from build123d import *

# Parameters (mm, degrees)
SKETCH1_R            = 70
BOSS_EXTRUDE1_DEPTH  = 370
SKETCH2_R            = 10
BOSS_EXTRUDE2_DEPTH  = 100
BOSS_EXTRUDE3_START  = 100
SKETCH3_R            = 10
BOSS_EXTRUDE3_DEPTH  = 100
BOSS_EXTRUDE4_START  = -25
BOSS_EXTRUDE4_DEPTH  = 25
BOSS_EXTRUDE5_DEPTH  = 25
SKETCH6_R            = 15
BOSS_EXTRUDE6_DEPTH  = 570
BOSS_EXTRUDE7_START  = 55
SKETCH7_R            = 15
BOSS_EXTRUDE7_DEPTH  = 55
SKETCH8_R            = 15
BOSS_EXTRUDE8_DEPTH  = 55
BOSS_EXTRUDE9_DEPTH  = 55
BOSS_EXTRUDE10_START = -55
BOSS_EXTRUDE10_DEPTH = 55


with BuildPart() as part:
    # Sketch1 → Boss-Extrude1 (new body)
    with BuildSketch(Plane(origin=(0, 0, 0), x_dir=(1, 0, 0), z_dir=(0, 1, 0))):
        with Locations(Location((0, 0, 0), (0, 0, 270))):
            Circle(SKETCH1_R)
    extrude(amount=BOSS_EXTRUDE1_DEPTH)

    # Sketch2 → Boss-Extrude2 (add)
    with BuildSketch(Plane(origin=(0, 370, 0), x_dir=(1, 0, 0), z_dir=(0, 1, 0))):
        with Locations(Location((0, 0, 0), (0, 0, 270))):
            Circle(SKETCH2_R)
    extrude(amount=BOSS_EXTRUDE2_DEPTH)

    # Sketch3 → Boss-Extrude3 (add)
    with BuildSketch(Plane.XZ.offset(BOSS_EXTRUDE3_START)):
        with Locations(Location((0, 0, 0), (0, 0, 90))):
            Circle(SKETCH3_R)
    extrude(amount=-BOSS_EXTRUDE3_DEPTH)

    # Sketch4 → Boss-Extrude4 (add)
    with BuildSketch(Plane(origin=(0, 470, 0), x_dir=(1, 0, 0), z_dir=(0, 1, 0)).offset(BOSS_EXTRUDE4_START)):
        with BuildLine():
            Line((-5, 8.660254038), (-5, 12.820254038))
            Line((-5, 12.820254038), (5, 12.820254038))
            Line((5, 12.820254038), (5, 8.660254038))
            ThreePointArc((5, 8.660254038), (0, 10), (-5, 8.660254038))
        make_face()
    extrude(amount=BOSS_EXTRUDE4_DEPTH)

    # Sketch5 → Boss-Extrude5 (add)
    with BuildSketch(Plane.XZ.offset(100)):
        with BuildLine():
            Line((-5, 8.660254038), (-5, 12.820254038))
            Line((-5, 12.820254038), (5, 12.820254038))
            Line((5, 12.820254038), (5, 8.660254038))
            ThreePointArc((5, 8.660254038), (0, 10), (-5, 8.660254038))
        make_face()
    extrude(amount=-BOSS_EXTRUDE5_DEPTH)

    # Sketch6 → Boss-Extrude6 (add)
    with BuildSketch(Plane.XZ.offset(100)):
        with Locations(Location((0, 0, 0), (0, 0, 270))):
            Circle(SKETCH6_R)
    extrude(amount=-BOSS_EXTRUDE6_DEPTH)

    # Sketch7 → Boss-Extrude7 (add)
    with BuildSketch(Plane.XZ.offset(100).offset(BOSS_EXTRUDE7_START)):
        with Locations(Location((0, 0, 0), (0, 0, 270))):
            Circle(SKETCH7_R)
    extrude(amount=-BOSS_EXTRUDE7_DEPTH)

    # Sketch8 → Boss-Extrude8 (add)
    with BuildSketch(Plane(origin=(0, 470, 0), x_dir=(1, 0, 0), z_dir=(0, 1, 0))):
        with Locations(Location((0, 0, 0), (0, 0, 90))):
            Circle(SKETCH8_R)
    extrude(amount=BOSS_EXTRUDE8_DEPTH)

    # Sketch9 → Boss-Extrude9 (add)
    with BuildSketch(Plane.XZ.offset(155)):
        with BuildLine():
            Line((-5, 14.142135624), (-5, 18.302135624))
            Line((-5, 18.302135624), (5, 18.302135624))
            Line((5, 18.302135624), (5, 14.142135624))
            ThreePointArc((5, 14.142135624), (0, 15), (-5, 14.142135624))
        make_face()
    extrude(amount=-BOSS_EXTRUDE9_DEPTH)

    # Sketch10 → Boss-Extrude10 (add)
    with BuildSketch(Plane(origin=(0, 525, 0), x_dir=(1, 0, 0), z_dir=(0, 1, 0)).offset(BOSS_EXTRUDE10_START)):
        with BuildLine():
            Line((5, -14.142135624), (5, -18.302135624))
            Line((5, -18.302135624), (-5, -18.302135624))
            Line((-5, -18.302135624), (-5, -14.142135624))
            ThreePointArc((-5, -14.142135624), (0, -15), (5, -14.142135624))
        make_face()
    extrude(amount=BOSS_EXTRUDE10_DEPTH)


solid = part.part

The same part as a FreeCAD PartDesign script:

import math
import FreeCAD as App
import Part
import Sketcher
Q = App.Units.Quantity

doc = App.newDocument("Part")
body = doc.addObject("PartDesign::Body", "Body")

# Sketch on XZ plane
sketch1 = body.newObject("Sketcher::SketchObject", "Sketch")
sketch1.AttachmentSupport = (doc.getObject("XZ_Plane"), [""])
sketch1.MapMode = "FlatFace"
sketch1.addGeometry(Part.Circle(App.Vector(0, 0, 0), App.Vector(0, 0, 1), 70), False)
sketch1.addConstraint(Sketcher.Constraint("Coincident", 0, 3, -1, 1))
sketch1.addConstraint(Sketcher.Constraint("Diameter", 0, Q("140 mm")))
pad1 = body.newObject("PartDesign::Pad", "Pad")
pad1.Profile = sketch1
pad1.Length = 370
pad1.Reversed = True

# Sketch on XZ plane
sketch2 = body.newObject("Sketcher::SketchObject", "Sketch001")
sketch2.AttachmentSupport = (doc.getObject("XZ_Plane"), [""])
sketch2.MapMode = "FlatFace"
sketch2.AttachmentOffset = App.Placement(App.Vector(0, 0, -370), App.Rotation())
sketch2.addGeometry(Part.Circle(App.Vector(0, 0, 0), App.Vector(0, 0, 1), 10), False)
sketch2.addConstraint(Sketcher.Constraint("Coincident", 0, 3, -1, 1))
sketch2.addConstraint(Sketcher.Constraint("Diameter", 0, Q("20 mm")))
pad2 = body.newObject("PartDesign::Pad", "Pad001")
pad2.Profile = sketch2
pad2.Length = 100
pad2.Reversed = True

# Sketch on XZ plane
sketch3 = body.newObject("Sketcher::SketchObject", "Sketch002")
sketch3.AttachmentSupport = (doc.getObject("XZ_Plane"), [""])
sketch3.MapMode = "FlatFace"
sketch3.AttachmentOffset = App.Placement(App.Vector(0, 0, 100), App.Rotation())
sketch3.addGeometry(Part.Circle(App.Vector(0, 0, 0), App.Vector(0, 0, 1), 10), False)
sketch3.addConstraint(Sketcher.Constraint("Coincident", 0, 3, -1, 1))
sketch3.addConstraint(Sketcher.Constraint("Diameter", 0, Q("20 mm")))
pad3 = body.newObject("PartDesign::Pad", "Pad002")
pad3.Profile = sketch3
pad3.Length = 100
pad3.Reversed = True

# Sketch on XZ plane
sketch4 = body.newObject("Sketcher::SketchObject", "Sketch003")
sketch4.AttachmentSupport = (doc.getObject("XZ_Plane"), [""])
sketch4.MapMode = "FlatFace"
sketch4.AttachmentOffset = App.Placement(App.Vector(0, 0, -445), App.Rotation())
sketch4.addGeometry(Part.LineSegment(App.Vector(-5, -12.8, 0), App.Vector(-5, -8.7, 0)), False)
sketch4.addGeometry(Part.ArcOfCircle(Part.Circle(App.Vector(0, 0, 0), App.Vector(0, 0, 1), 10), math.radians(-120), math.radians(-60)), False)
sketch4.addGeometry(Part.LineSegment(App.Vector(5, -8.7, 0), App.Vector(5, -12.8, 0)), False)
sketch4.addGeometry(Part.LineSegment(App.Vector(5, -12.8, 0), App.Vector(-5, -12.8, 0)), False)
sketch4.addConstraint(Sketcher.Constraint("Coincident", 0, 2, 1, 1))
sketch4.addConstraint(Sketcher.Constraint("Coincident", 1, 2, 2, 1))
sketch4.addConstraint(Sketcher.Constraint("Coincident", 2, 2, 3, 1))
sketch4.addConstraint(Sketcher.Constraint("Coincident", 3, 2, 0, 1))
sketch4.addConstraint(Sketcher.Constraint("Vertical", 0))
sketch4.addConstraint(Sketcher.Constraint("Vertical", 2))
sketch4.addConstraint(Sketcher.Constraint("Horizontal", 3))
sketch4.addConstraint(Sketcher.Constraint("Coincident", 1, 3, -1, 1))
sketch4.addConstraint(Sketcher.Constraint("Horizontal", 0, 2, 1, 2))
sketch4.addConstraint(Sketcher.Constraint("Radius", 1, Q("10 mm")))
sketch4.addConstraint(Sketcher.Constraint("DistanceX", 3, 2, 3, 1, Q("10 mm")))
sketch4.addConstraint(Sketcher.Constraint("DistanceY", 0, 1, 0, 2, Q("4.16 mm")))
pad4 = body.newObject("PartDesign::Pad", "Pad003")
pad4.Profile = sketch4
pad4.Length = 25
pad4.Reversed = True

# Sketch on XZ plane
sketch5 = body.newObject("Sketcher::SketchObject", "Sketch004")
sketch5.AttachmentSupport = (doc.getObject("XZ_Plane"), [""])
sketch5.MapMode = "FlatFace"
sketch5.AttachmentOffset = App.Placement(App.Vector(0, 0, 100), App.Rotation())
sketch5.addGeometry(Part.LineSegment(App.Vector(-5, 12.8, 0), App.Vector(-5, 8.7, 0)), False)
sketch5.addGeometry(Part.ArcOfCircle(Part.Circle(App.Vector(0, 0, 0), App.Vector(0, 0, 1), 10), math.radians(60), math.radians(120)), False)
sketch5.addGeometry(Part.LineSegment(App.Vector(5, 8.7, 0), App.Vector(5, 12.8, 0)), False)
sketch5.addGeometry(Part.LineSegment(App.Vector(5, 12.8, 0), App.Vector(-5, 12.8, 0)), False)
sketch5.addConstraint(Sketcher.Constraint("Coincident", 0, 2, 1, 2))
sketch5.addConstraint(Sketcher.Constraint("Coincident", 1, 1, 2, 1))
sketch5.addConstraint(Sketcher.Constraint("Coincident", 2, 2, 3, 1))
sketch5.addConstraint(Sketcher.Constraint("Coincident", 3, 2, 0, 1))
sketch5.addConstraint(Sketcher.Constraint("Vertical", 0))
sketch5.addConstraint(Sketcher.Constraint("Vertical", 2))
sketch5.addConstraint(Sketcher.Constraint("Horizontal", 3))
sketch5.addConstraint(Sketcher.Constraint("Coincident", 1, 3, -1, 1))
sketch5.addConstraint(Sketcher.Constraint("Horizontal", 0, 2, 1, 1))
sketch5.addConstraint(Sketcher.Constraint("Radius", 1, Q("10 mm")))
sketch5.addConstraint(Sketcher.Constraint("DistanceX", 3, 2, 3, 1, Q("10 mm")))
sketch5.addConstraint(Sketcher.Constraint("DistanceY", 0, 2, 0, 1, Q("4.16 mm")))
pad5 = body.newObject("PartDesign::Pad", "Pad004")
pad5.Profile = sketch5
pad5.Length = 25
pad5.Reversed = True

# Sketch on XZ plane
sketch6 = body.newObject("Sketcher::SketchObject", "Sketch005")
sketch6.AttachmentSupport = (doc.getObject("XZ_Plane"), [""])
sketch6.MapMode = "FlatFace"
sketch6.AttachmentOffset = App.Placement(App.Vector(0, 0, 100), App.Rotation())
sketch6.addGeometry(Part.Circle(App.Vector(0, 0, 0), App.Vector(0, 0, 1), 15), False)
sketch6.addConstraint(Sketcher.Constraint("Coincident", 0, 3, -1, 1))
sketch6.addConstraint(Sketcher.Constraint("Diameter", 0, Q("30 mm")))
pad6 = body.newObject("PartDesign::Pad", "Pad005")
pad6.Profile = sketch6
pad6.Length = 570
pad6.Reversed = True

# Sketch on XZ plane
sketch7 = body.newObject("Sketcher::SketchObject", "Sketch006")
sketch7.AttachmentSupport = (doc.getObject("XZ_Plane"), [""])
sketch7.MapMode = "FlatFace"
sketch7.AttachmentOffset = App.Placement(App.Vector(0, 0, 155), App.Rotation())
sketch7.addGeometry(Part.Circle(App.Vector(0, 0, 0), App.Vector(0, 0, 1), 15), False)
sketch7.addConstraint(Sketcher.Constraint("Coincident", 0, 3, -1, 1))
sketch7.addConstraint(Sketcher.Constraint("Diameter", 0, Q("30 mm")))
pad7 = body.newObject("PartDesign::Pad", "Pad006")
pad7.Profile = sketch7
pad7.Length = 55
pad7.Reversed = True

# Sketch on XZ plane
sketch8 = body.newObject("Sketcher::SketchObject", "Sketch007")
sketch8.AttachmentSupport = (doc.getObject("XZ_Plane"), [""])
sketch8.MapMode = "FlatFace"
sketch8.AttachmentOffset = App.Placement(App.Vector(0, 0, -470), App.Rotation())
sketch8.addGeometry(Part.Circle(App.Vector(0, 0, 0), App.Vector(0, 0, 1), 15), False)
sketch8.addConstraint(Sketcher.Constraint("Coincident", 0, 3, -1, 1))
sketch8.addConstraint(Sketcher.Constraint("Diameter", 0, Q("30 mm")))
pad8 = body.newObject("PartDesign::Pad", "Pad007")
pad8.Profile = sketch8
pad8.Length = 55
pad8.Reversed = True

# Sketch on XZ plane
sketch9 = body.newObject("Sketcher::SketchObject", "Sketch008")
sketch9.AttachmentSupport = (doc.getObject("XZ_Plane"), [""])
sketch9.MapMode = "FlatFace"
sketch9.AttachmentOffset = App.Placement(App.Vector(0, 0, 155), App.Rotation())
sketch9.addGeometry(Part.LineSegment(App.Vector(-5, 18.3, 0), App.Vector(-5, 14.1, 0)), False)
sketch9.addGeometry(Part.ArcOfCircle(Part.Circle(App.Vector(0, 0, 0), App.Vector(0, 0, 1), 15), math.radians(71), math.radians(109)), False)
sketch9.addGeometry(Part.LineSegment(App.Vector(5, 14.1, 0), App.Vector(5, 18.3, 0)), False)
sketch9.addGeometry(Part.LineSegment(App.Vector(5, 18.3, 0), App.Vector(-5, 18.3, 0)), False)
sketch9.addConstraint(Sketcher.Constraint("Coincident", 0, 2, 1, 2))
sketch9.addConstraint(Sketcher.Constraint("Coincident", 1, 1, 2, 1))
sketch9.addConstraint(Sketcher.Constraint("Coincident", 2, 2, 3, 1))
sketch9.addConstraint(Sketcher.Constraint("Coincident", 3, 2, 0, 1))
sketch9.addConstraint(Sketcher.Constraint("Vertical", 0))
sketch9.addConstraint(Sketcher.Constraint("Vertical", 2))
sketch9.addConstraint(Sketcher.Constraint("Horizontal", 3))
sketch9.addConstraint(Sketcher.Constraint("Coincident", 1, 3, -1, 1))
sketch9.addConstraint(Sketcher.Constraint("Horizontal", 0, 2, 1, 1))
sketch9.addConstraint(Sketcher.Constraint("Radius", 1, Q("15 mm")))
sketch9.addConstraint(Sketcher.Constraint("DistanceX", 3, 2, 3, 1, Q("10 mm")))
sketch9.addConstraint(Sketcher.Constraint("DistanceY", 0, 2, 0, 1, Q("4.16 mm")))
pad9 = body.newObject("PartDesign::Pad", "Pad008")
pad9.Profile = sketch9
pad9.Length = 55
pad9.Reversed = True

# Sketch on XZ plane
sketch10 = body.newObject("Sketcher::SketchObject", "Sketch009")
sketch10.AttachmentSupport = (doc.getObject("XZ_Plane"), [""])
sketch10.MapMode = "FlatFace"
sketch10.AttachmentOffset = App.Placement(App.Vector(0, 0, -470), App.Rotation())
sketch10.addGeometry(Part.LineSegment(App.Vector(5, 18.3, 0), App.Vector(5, 14.1, 0)), False)
sketch10.addGeometry(Part.ArcOfCircle(Part.Circle(App.Vector(0, 0, 0), App.Vector(0, 0, 1), 15), math.radians(71), math.radians(109)), False)
sketch10.addGeometry(Part.LineSegment(App.Vector(-5, 14.1, 0), App.Vector(-5, 18.3, 0)), False)
sketch10.addGeometry(Part.LineSegment(App.Vector(-5, 18.3, 0), App.Vector(5, 18.3, 0)), False)
sketch10.addConstraint(Sketcher.Constraint("Coincident", 0, 2, 1, 1))
sketch10.addConstraint(Sketcher.Constraint("Coincident", 1, 2, 2, 1))
sketch10.addConstraint(Sketcher.Constraint("Coincident", 2, 2, 3, 1))
sketch10.addConstraint(Sketcher.Constraint("Coincident", 3, 2, 0, 1))
sketch10.addConstraint(Sketcher.Constraint("Vertical", 0))
sketch10.addConstraint(Sketcher.Constraint("Vertical", 2))
sketch10.addConstraint(Sketcher.Constraint("Horizontal", 3))
sketch10.addConstraint(Sketcher.Constraint("Coincident", 1, 3, -1, 1))
sketch10.addConstraint(Sketcher.Constraint("Horizontal", 0, 2, 1, 2))
sketch10.addConstraint(Sketcher.Constraint("Radius", 1, Q("15 mm")))
sketch10.addConstraint(Sketcher.Constraint("DistanceX", 3, 1, 3, 2, Q("10 mm")))
sketch10.addConstraint(Sketcher.Constraint("DistanceY", 0, 2, 0, 1, Q("4.16 mm")))
pad10 = body.newObject("PartDesign::Pad", "Pad009")
pad10.Profile = sketch10
pad10.Length = 55
pad10.Reversed = True

doc.recompute()
